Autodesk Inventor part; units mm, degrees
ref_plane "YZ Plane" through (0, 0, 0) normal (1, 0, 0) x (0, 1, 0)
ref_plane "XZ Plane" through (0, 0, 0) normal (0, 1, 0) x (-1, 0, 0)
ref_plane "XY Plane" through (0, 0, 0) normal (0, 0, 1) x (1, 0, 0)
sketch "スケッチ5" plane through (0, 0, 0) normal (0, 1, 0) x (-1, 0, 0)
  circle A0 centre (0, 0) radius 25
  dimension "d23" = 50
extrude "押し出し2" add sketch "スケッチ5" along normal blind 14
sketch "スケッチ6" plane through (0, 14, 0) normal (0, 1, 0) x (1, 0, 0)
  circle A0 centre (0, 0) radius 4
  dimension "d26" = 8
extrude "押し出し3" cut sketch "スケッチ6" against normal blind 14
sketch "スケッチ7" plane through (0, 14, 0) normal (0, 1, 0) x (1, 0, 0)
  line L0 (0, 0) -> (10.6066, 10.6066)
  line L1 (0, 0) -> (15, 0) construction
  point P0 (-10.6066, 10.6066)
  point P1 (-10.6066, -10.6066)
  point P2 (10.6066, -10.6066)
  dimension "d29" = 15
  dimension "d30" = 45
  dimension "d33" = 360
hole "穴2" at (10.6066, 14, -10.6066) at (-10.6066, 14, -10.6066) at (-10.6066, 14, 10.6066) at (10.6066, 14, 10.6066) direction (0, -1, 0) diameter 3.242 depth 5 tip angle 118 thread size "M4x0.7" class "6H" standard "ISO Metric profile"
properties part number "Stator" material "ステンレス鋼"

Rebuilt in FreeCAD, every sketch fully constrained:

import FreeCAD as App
import Part
import Sketcher

V = App.Vector

doc = App.newDocument("Part")
body = doc.addObject("PartDesign::Body", "Body")

# Sketch on XZ plane
sketch1 = doc.addObject("Sketcher::SketchObject", "Sketch")
body.addObject(sketch1)
sketch1.AttachmentSupport = (doc.XZ_Plane, [""])
sketch1.MapMode = "FlatFace"
sketch1.addGeometry(Part.Circle(V(0, 0, 0), V(0, 0, 1), 25), False)
sketch1.addConstraint([
    Sketcher.Constraint("Coincident", 0, 3, -1, 1),
    Sketcher.Constraint("Diameter", 0, 50.0),
])
pad1 = doc.addObject("PartDesign::Pad", "Pad")
body.addObject(pad1)
pad1.Profile = sketch1
pad1.Length = 14
pad1.Reversed = True

# Sketch on XZ plane
sketch2 = doc.addObject("Sketcher::SketchObject", "Sketch001")
body.addObject(sketch2)
sketch2.AttachmentSupport = (doc.XZ_Plane, [""])
sketch2.MapMode = "FlatFace"
sketch2.AttachmentOffset = App.Placement(V(0, 0, -14), App.Rotation())
sketch2.addGeometry(Part.Circle(V(0, 0, 0), V(0, 0, 1), 4), False)
sketch2.addConstraint([
    Sketcher.Constraint("Coincident", 0, 3, -1, 1),
    Sketcher.Constraint("Diameter", 0, 8.0),
])
pocket1 = doc.addObject("PartDesign::Pocket", "Pocket")
body.addObject(pocket1)
pocket1.Profile = sketch2
pocket1.Length = 14
pocket1.Reversed = True

# Sketch on XZ plane
sketch3 = doc.addObject("Sketcher::SketchObject", "Sketch002")
body.addObject(sketch3)
sketch3.AttachmentSupport = (doc.XZ_Plane, [""])
sketch3.MapMode = "FlatFace"
sketch3.AttachmentOffset = App.Placement(V(0, 0, -14), App.Rotation())
sketch3.addGeometry([
    Part.Circle(V(10.6, -10.6, 0), V(0, 0, 1), 1.6),
    Part.Circle(V(-10.6, -10.6, 0), V(0, 0, 1), 1.6),
    Part.Circle(V(-10.6, 10.6, 0), V(0, 0, 1), 1.6),
    Part.Circle(V(10.6, 10.6, 0), V(0, 0, 1), 1.6),
], False)
sketch3.addConstraint([
    Sketcher.Constraint("Equal", 0, 1),
    Sketcher.Constraint("Equal", 1, 2),
    Sketcher.Constraint("Equal", 2, 3),
    Sketcher.Constraint("Symmetric", 0, 3, 2, 3, -1, 1),
    Sketcher.Constraint("Symmetric", 1, 3, 3, 3, -1, 1),
    Sketcher.Constraint("Symmetric", 0, 3, 1, 3, -2),
    Sketcher.Constraint("Diameter", 0, 3.242),
    Sketcher.Constraint("DistanceX", -1, 1, 0, 3, 10.6066),
    Sketcher.Constraint("DistanceY", 0, 3, -1, 1, 10.6066),
])
doc.recompute()
hole = doc.addObject("PartDesign::Hole", "Hole")
body.addObject(hole)
hole.Profile = sketch3
hole.ThreadType = "None"
hole.Diameter = 3.242
hole.DepthType = "Dimension"
hole.Depth = 5
hole.DrillPoint = "Angled"
hole.DrillPointAngle = 118
hole.Reversed = True

doc.recompute()
